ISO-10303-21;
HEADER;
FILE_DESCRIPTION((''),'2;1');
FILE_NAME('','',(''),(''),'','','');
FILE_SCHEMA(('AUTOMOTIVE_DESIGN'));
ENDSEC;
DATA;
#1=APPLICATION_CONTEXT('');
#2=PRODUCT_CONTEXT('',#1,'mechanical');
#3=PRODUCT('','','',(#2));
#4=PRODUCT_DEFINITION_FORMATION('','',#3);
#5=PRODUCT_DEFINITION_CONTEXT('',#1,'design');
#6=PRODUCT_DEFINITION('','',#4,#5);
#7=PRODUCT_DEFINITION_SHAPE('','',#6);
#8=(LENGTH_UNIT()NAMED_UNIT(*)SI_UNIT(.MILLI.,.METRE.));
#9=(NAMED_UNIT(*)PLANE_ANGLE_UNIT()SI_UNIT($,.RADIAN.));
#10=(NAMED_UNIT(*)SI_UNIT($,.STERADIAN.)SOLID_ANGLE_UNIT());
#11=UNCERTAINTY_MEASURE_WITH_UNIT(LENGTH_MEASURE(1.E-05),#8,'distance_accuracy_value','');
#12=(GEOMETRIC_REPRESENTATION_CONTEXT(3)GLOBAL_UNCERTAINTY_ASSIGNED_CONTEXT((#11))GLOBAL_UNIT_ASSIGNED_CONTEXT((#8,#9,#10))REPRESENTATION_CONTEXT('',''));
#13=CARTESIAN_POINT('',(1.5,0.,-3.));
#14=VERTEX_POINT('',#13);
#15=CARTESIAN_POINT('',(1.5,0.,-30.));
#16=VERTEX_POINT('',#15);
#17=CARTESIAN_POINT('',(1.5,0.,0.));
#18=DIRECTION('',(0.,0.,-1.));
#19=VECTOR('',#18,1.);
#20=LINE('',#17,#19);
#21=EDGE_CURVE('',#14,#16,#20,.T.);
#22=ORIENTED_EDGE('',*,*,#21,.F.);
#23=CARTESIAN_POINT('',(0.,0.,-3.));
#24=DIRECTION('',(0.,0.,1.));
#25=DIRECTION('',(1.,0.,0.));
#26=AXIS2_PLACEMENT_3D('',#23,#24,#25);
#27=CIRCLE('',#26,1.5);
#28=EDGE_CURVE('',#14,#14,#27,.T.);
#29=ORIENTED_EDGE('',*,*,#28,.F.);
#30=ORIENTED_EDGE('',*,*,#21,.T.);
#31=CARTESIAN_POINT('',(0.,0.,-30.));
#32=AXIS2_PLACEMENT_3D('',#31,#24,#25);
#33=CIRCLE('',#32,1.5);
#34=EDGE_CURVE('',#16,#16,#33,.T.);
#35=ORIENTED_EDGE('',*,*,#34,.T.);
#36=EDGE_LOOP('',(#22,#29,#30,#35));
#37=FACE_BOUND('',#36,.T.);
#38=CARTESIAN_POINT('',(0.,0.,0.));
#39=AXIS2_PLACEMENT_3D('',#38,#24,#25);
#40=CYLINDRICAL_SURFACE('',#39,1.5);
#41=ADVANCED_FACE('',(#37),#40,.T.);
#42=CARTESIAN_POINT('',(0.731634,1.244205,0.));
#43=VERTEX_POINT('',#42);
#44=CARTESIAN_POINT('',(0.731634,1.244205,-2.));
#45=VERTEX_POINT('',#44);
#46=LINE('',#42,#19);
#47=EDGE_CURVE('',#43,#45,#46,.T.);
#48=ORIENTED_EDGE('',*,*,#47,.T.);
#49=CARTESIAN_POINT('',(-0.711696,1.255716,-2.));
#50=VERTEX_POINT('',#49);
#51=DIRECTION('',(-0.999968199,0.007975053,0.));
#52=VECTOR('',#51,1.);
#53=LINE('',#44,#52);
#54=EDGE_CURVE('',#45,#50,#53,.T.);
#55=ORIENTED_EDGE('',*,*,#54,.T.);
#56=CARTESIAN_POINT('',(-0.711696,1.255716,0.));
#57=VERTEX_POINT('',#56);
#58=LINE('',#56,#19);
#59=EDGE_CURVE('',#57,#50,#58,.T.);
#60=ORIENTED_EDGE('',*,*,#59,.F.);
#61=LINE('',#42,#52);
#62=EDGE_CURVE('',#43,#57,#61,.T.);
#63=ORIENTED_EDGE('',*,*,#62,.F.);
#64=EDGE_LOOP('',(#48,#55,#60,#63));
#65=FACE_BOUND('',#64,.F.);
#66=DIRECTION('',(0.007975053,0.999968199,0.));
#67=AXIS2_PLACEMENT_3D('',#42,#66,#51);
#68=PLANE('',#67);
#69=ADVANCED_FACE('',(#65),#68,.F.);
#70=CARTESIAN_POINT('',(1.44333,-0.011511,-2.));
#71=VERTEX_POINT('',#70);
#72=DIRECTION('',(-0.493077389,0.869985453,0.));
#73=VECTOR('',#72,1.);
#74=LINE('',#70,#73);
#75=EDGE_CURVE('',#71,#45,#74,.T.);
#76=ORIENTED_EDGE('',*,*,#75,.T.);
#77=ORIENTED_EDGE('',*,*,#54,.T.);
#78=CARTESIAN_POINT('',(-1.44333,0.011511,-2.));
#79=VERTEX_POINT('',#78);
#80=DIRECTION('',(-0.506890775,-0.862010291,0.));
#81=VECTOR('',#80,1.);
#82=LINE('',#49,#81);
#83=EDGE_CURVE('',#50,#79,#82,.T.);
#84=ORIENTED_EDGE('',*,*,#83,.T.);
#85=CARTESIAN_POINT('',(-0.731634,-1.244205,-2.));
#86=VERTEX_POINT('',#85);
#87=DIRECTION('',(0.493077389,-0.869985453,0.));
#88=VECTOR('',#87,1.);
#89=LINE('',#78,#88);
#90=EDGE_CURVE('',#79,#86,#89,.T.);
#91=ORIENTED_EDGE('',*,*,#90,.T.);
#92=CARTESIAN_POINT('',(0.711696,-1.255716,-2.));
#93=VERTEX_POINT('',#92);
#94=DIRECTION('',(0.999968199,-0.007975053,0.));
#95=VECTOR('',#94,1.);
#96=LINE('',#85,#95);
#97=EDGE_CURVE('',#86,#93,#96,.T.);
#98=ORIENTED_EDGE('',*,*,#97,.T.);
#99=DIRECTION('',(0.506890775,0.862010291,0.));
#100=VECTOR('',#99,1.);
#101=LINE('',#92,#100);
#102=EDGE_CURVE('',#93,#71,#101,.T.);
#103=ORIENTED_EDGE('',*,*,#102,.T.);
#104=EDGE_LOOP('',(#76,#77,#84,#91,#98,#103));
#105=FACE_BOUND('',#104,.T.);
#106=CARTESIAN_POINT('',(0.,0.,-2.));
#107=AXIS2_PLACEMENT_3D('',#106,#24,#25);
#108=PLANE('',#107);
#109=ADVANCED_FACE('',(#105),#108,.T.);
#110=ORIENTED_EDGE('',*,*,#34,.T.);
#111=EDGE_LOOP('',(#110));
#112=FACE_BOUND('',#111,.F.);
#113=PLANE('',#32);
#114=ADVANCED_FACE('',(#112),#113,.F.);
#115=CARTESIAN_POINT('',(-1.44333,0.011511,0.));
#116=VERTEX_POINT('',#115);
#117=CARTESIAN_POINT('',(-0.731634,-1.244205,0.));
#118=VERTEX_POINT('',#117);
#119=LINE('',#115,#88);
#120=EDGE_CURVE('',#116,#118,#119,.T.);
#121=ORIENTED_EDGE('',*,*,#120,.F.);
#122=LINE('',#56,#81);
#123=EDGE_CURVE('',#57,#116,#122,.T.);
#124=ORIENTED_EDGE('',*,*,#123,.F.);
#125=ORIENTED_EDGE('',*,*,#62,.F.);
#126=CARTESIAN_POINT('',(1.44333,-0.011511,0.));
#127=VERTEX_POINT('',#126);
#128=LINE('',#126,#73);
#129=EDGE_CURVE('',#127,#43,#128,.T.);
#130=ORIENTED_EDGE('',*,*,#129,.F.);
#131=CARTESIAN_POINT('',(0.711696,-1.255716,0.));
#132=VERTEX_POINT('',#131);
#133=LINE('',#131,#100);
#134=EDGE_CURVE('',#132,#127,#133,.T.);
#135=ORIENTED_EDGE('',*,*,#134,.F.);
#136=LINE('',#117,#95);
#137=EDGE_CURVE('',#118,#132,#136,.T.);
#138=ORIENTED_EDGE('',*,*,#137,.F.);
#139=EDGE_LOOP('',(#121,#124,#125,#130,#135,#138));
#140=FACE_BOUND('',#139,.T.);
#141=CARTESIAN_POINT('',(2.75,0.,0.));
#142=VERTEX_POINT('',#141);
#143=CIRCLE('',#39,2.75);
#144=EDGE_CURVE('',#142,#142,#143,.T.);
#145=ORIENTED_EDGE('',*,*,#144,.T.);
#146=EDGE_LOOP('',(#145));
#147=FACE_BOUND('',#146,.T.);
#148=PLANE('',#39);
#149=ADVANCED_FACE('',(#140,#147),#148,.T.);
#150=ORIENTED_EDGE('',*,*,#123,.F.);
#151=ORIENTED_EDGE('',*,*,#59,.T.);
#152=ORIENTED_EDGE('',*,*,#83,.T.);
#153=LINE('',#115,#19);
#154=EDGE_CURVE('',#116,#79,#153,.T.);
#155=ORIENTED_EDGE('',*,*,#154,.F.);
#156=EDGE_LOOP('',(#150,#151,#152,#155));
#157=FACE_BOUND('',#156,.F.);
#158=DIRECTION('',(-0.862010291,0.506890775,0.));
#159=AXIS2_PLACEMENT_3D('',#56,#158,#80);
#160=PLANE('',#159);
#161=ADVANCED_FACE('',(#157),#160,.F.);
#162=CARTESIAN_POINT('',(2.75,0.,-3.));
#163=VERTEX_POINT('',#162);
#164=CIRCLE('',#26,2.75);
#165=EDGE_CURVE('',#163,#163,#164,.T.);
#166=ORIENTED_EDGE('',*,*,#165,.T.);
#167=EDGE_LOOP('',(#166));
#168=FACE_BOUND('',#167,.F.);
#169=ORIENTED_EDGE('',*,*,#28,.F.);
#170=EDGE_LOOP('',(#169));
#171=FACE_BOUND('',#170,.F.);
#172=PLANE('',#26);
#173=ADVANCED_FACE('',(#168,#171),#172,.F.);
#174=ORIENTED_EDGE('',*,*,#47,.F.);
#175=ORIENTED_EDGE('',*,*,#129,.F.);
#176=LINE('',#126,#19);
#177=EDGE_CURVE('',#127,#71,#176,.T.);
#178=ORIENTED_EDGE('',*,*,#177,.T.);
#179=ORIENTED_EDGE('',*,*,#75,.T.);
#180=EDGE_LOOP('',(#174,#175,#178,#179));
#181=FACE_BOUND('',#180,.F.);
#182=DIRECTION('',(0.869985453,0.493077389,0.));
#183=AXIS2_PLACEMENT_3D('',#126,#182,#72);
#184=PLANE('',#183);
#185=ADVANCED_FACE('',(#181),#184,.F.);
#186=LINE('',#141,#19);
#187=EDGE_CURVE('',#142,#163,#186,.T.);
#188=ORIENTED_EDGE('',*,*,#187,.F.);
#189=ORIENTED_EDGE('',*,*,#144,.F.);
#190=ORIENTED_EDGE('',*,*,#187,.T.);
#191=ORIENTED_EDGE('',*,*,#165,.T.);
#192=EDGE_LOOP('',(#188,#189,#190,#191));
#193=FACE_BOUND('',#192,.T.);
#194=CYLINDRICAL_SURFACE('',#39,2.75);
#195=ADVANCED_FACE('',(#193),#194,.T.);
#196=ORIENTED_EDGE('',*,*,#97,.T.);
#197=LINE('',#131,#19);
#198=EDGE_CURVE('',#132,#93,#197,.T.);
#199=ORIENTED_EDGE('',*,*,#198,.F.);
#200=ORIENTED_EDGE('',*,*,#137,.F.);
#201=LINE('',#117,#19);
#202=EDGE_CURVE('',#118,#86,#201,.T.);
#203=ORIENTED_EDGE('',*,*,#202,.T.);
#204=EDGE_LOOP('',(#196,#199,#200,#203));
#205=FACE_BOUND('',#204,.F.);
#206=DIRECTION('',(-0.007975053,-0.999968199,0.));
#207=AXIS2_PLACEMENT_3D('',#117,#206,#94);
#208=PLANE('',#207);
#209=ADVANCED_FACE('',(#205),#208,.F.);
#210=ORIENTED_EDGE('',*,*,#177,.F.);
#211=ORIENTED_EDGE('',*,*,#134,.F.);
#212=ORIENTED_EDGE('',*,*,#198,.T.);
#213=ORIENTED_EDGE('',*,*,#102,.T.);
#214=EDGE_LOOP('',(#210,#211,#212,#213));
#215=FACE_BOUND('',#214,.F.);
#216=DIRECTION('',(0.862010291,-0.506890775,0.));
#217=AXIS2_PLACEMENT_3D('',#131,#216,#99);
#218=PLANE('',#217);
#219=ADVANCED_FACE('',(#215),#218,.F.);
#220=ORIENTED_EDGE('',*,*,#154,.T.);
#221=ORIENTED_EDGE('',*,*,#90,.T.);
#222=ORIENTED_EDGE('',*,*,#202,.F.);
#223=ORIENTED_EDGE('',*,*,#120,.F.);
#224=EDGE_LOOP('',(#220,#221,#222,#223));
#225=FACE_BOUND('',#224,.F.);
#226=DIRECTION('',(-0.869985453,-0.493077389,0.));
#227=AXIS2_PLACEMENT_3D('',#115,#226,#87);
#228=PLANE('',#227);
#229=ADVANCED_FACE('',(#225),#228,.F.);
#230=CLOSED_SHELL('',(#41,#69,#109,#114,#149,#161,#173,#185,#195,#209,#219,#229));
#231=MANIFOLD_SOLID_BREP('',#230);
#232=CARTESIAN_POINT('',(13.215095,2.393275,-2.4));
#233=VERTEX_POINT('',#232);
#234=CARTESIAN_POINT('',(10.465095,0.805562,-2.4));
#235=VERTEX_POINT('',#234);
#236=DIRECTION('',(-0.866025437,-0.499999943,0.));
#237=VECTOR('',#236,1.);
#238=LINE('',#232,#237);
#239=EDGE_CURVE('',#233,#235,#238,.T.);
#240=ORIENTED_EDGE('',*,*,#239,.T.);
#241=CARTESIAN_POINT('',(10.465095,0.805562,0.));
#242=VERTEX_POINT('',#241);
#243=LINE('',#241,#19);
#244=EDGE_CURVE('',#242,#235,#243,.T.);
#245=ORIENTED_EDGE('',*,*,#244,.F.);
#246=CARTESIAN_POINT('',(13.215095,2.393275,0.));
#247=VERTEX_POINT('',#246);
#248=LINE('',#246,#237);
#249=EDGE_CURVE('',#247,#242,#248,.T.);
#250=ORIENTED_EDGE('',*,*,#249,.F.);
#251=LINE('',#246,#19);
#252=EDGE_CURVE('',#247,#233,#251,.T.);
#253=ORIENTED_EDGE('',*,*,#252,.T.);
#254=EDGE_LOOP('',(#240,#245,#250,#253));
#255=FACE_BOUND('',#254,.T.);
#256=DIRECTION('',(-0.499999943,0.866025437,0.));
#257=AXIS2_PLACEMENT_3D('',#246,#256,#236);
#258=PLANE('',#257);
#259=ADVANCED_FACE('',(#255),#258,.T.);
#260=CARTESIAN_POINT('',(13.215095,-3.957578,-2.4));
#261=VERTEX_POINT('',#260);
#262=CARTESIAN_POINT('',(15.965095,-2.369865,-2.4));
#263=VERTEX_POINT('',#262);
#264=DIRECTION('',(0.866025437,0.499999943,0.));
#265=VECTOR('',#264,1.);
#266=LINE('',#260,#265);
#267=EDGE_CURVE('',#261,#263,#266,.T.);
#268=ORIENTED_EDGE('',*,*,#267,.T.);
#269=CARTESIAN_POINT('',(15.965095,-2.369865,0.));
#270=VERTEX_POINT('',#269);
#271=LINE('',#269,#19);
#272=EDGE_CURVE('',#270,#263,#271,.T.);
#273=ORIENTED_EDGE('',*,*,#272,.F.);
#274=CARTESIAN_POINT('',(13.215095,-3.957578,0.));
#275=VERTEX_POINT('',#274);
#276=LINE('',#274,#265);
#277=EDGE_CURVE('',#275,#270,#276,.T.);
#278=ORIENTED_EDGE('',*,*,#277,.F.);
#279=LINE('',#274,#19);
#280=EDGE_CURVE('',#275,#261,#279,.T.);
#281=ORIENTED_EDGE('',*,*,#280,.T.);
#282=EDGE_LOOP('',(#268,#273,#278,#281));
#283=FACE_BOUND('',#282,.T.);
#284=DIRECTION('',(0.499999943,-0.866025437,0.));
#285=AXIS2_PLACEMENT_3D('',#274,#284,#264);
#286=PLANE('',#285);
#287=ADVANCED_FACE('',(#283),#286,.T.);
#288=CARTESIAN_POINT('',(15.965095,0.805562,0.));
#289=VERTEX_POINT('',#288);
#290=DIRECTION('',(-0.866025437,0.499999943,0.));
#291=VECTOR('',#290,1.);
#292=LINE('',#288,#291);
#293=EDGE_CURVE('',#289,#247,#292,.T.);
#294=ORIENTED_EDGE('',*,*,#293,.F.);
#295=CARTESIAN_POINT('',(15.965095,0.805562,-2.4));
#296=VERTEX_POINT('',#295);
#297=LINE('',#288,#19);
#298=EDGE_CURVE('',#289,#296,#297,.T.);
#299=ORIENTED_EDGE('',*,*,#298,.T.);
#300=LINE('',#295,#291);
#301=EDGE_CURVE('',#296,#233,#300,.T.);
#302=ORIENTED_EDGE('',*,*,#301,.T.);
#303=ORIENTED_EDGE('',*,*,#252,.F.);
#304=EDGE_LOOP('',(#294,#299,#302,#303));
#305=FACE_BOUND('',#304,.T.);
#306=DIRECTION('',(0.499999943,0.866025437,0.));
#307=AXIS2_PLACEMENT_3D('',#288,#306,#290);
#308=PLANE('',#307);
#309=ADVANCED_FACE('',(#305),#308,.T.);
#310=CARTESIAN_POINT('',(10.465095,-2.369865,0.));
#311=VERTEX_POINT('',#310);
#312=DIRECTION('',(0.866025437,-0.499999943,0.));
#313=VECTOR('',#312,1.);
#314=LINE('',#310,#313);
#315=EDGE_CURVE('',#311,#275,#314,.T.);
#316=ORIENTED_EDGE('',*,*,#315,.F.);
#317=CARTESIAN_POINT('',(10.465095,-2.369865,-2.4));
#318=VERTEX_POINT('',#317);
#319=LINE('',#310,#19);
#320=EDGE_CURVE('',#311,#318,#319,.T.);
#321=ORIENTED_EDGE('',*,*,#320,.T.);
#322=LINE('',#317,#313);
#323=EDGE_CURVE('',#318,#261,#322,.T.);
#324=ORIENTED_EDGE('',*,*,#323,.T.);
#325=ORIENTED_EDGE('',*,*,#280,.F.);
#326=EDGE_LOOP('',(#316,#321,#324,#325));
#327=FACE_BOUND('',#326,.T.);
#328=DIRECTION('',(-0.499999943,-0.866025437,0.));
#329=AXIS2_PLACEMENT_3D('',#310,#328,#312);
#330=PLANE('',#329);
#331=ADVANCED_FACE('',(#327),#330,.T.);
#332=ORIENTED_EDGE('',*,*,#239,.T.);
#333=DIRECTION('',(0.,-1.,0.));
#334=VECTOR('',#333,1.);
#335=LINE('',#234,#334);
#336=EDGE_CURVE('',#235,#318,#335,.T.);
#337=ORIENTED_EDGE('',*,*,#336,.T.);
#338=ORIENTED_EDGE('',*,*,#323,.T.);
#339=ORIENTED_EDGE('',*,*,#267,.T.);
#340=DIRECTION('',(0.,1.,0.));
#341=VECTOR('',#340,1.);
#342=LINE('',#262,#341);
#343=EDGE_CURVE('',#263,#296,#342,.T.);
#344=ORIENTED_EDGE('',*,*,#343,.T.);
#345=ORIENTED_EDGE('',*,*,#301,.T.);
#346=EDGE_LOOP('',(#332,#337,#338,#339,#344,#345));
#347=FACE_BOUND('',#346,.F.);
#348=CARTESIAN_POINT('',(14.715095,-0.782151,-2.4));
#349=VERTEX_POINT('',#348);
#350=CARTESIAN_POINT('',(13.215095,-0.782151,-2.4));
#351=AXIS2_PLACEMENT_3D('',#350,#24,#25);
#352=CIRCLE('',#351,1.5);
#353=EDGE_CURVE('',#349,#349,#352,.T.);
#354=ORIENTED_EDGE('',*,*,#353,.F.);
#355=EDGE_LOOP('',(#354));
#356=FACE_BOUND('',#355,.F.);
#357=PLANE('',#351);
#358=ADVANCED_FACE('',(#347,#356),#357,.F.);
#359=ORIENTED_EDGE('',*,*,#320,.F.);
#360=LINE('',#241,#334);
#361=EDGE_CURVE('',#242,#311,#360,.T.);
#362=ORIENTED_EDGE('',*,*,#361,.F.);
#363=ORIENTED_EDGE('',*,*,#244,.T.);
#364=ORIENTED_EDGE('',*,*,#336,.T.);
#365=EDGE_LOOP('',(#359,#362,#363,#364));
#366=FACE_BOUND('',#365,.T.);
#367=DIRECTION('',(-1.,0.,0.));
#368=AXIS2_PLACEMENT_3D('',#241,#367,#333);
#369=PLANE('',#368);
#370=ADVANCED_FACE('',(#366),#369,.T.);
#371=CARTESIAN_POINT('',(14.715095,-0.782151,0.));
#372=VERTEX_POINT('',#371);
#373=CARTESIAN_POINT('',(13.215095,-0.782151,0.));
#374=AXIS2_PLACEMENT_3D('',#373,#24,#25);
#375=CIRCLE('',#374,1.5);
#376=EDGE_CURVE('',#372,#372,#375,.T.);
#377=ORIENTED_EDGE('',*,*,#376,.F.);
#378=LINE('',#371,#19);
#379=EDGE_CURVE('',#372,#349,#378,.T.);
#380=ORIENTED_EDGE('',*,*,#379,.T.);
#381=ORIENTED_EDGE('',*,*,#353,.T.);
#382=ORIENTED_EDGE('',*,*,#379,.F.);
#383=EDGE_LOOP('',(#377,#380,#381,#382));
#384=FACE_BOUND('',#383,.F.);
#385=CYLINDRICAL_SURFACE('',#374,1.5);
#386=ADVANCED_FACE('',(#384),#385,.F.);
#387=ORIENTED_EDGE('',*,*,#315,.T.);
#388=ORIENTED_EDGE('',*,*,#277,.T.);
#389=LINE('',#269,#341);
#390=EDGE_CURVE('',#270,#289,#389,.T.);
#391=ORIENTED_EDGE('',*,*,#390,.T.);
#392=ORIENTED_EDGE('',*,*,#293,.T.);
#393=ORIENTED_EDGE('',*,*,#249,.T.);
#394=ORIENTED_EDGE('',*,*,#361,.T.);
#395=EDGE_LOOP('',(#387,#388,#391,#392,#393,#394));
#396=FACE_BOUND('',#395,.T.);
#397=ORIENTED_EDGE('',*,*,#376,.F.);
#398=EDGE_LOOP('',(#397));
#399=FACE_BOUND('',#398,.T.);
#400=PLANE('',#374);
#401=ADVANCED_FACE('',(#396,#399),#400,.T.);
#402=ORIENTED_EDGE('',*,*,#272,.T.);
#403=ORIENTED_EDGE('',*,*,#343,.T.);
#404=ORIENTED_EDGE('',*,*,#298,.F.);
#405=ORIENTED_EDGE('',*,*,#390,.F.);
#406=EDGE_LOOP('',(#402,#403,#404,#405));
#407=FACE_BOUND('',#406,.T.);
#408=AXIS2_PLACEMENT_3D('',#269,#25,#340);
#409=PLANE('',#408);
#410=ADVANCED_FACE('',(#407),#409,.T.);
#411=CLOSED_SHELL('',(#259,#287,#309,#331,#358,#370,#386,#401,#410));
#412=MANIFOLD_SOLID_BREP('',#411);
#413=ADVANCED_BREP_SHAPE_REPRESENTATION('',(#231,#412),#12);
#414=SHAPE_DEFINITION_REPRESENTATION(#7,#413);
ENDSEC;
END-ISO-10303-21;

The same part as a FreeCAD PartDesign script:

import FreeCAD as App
import Part
import Sketcher

V = App.Vector
Q = App.Units.Quantity


def add_polygon(sketch, points):
    """Adds a closed chain of lines whose ends are joined by coincident constraints."""
    first, n = sketch.GeometryCount, len(points)
    for a, b in zip(points, points[1:] + points[:1]):
        sketch.addGeometry(Part.LineSegment(App.Vector(*a, 0), App.Vector(*b, 0)), False)
    for i in range(n):
        sketch.addConstraint(Sketcher.Constraint("Coincident", first + i, 2, first + (i + 1) % n, 1))

doc = App.newDocument("Part")
params = doc.addObject("Spreadsheet::Sheet", "Params")
for row, (alias, value) in enumerate([
    ("sketch1_diameter", "5.5 mm"),
    ("pad1_length", "3 mm"),
    ("sketch2_diameter", "3 mm"),
    ("pad2_length", "30 mm"),
    ("pocket1_length", "2 mm"),
    ("sketch4_diameter", "3 mm"),
    ("pad3_length", "2.4 mm"),
], start=1):
    params.set(f"A{row}", alias)
    params.set(f"B{row}", "=" + value)
    params.setAlias(f"B{row}", alias)

body = doc.addObject("PartDesign::Body", "Body")

# Sketch on XY plane
sketch1 = body.newObject("Sketcher::SketchObject", "Sketch")
sketch1.AttachmentSupport = (doc.getObject("XY_Plane"), [""])
sketch1.MapMode = "FlatFace"
sketch1.addGeometry(Part.Circle(V(0, 0, 0), V(0, 0, 1), 2.75), False)
sketch1.addConstraint(Sketcher.Constraint("Coincident", 0, 3, -1, 1))
sketch1.addConstraint(Sketcher.Constraint("Diameter", 0, 5.5))
sketch1.setExpression("Constraints[1]", "Params.sketch1_diameter")
pad1 = body.newObject("PartDesign::Pad", "Pad")
pad1.Profile = sketch1
pad1.setExpression("Length", "Params.pad1_length")
pad1.Reversed = True

# Sketch on XY plane
sketch2 = body.newObject("Sketcher::SketchObject", "Sketch001")
sketch2.AttachmentSupport = (doc.getObject("XY_Plane"), [""])
sketch2.MapMode = "FlatFace"
sketch2.addGeometry(Part.Circle(V(0, 0, 0), V(0, 0, 1), 1.5), False)
sketch2.addConstraint(Sketcher.Constraint("Coincident", 0, 3, -1, 1))
sketch2.addConstraint(Sketcher.Constraint("Diameter", 0, 3.0))
sketch2.setExpression("Constraints[1]", "Params.sketch2_diameter")
pad2 = body.newObject("PartDesign::Pad", "Pad001")
pad2.Profile = sketch2
pad2.setExpression("Length", "Params.pad2_length")
pad2.Reversed = True

# Sketch on XY plane
sketch3 = body.newObject("Sketcher::SketchObject", "Sketch002")
sketch3.AttachmentSupport = (doc.getObject("XY_Plane"), [""])
sketch3.MapMode = "FlatFace"
add_polygon(sketch3, [(-0.711696, 1.255716), (-1.44333, 0.011511), (-0.731634, -1.244205), (0.711696, -1.255716), (1.44333, -0.011511), (0.731634, 1.244205)])  # lines 0-5
sketch3.addConstraint(Sketcher.Constraint("Symmetric", 0, 2, 3, 2, -1, 1))
sketch3.addConstraint(Sketcher.Constraint("Symmetric", 1, 2, 4, 2, -1, 1))
sketch3.addConstraint(Sketcher.Constraint("Symmetric", 2, 2, 5, 2, -1, 1))
sketch3.addConstraint(Sketcher.Constraint("Equal", 0, 1))
sketch3.addConstraint(Sketcher.Constraint("Equal", 1, 2))
sketch3.addConstraint(Sketcher.Constraint("DistanceX", 0, 2, -1, 1, 1.44333))
sketch3.addConstraint(Sketcher.Constraint("DistanceY", -1, 1, 0, 2, 0.011511))
sketch3.addConstraint(Sketcher.Constraint("DistanceX", 1, 2, 2, 2, 1.44333))
sketch3.addConstraint(Sketcher.Constraint("DistanceY", 2, 2, 1, 2, 0.011511))
pocket1 = body.newObject("PartDesign::Pocket", "Pocket")
pocket1.Profile = sketch3
pocket1.setExpression("Length", "Params.pocket1_length")
body2 = doc.addObject("PartDesign::Body", "Body001")

# Sketch on XY plane
sketch4 = body2.newObject("Sketcher::SketchObject", "Sketch003")
sketch4.AttachmentSupport = (doc.getObject("XY_Plane001"), [""])
sketch4.MapMode = "FlatFace"
add_polygon(sketch4, [(10.465095, 0.805562), (10.465095, -2.369865), (13.215095, -3.957578), (15.965095, -2.369865), (15.965095, 0.805562), (13.215095, 2.393275)])  # lines 0-5
sketch4.addGeometry(Part.Circle(V(13.215095, -0.782151, 0), V(0, 0, 1), 1.5), False)  # 6
sketch4.addConstraint(Sketcher.Constraint("Vertical", 0))
sketch4.addConstraint(Sketcher.Constraint("Vertical", 3))
sketch4.addConstraint(Sketcher.Constraint("Parallel", 1, 4))
sketch4.addConstraint(Sketcher.Constraint("Parallel", 2, 5))
sketch4.addConstraint(Sketcher.Constraint("Horizontal", 0, 2, 2, 2))
sketch4.addConstraint(Sketcher.Constraint("Horizontal", 3, 2, 5, 2))
sketch4.addConstraint(Sketcher.Constraint("Vertical", 6, 3, 1, 2))
sketch4.addConstraint(Sketcher.Constraint("Vertical", 1, 2, 4, 2))
sketch4.addConstraint(Sketcher.Constraint("Diameter", 6, 3.0))
sketch4.addConstraint(Sketcher.Constraint("Angle", 1, Q("-29.999996 deg")))
sketch4.addConstraint(Sketcher.Constraint("DistanceX", 0, 2, 2, 2, 5.5))
sketch4.addConstraint(Sketcher.Constraint("DistanceY", 0, 2, 0, 1, 3.175427))
sketch4.addConstraint(Sketcher.Constraint("DistanceY", 6, 3, -1, 1, 0.782151))
sketch4.addConstraint(Sketcher.Constraint("DistanceY", -1, 1, 3, 2, 0.805562))
sketch4.addConstraint(Sketcher.Constraint("DistanceX", -1, 1, 6, 3, 13.215095))
sketch4.setExpression("Constraints[14]", "Params.sketch4_diameter")
pad3 = body2.newObject("PartDesign::Pad", "Pad002")
pad3.Profile = sketch4
pad3.setExpression("Length", "Params.pad3_length")
pad3.Reversed = True

doc.recompute()
